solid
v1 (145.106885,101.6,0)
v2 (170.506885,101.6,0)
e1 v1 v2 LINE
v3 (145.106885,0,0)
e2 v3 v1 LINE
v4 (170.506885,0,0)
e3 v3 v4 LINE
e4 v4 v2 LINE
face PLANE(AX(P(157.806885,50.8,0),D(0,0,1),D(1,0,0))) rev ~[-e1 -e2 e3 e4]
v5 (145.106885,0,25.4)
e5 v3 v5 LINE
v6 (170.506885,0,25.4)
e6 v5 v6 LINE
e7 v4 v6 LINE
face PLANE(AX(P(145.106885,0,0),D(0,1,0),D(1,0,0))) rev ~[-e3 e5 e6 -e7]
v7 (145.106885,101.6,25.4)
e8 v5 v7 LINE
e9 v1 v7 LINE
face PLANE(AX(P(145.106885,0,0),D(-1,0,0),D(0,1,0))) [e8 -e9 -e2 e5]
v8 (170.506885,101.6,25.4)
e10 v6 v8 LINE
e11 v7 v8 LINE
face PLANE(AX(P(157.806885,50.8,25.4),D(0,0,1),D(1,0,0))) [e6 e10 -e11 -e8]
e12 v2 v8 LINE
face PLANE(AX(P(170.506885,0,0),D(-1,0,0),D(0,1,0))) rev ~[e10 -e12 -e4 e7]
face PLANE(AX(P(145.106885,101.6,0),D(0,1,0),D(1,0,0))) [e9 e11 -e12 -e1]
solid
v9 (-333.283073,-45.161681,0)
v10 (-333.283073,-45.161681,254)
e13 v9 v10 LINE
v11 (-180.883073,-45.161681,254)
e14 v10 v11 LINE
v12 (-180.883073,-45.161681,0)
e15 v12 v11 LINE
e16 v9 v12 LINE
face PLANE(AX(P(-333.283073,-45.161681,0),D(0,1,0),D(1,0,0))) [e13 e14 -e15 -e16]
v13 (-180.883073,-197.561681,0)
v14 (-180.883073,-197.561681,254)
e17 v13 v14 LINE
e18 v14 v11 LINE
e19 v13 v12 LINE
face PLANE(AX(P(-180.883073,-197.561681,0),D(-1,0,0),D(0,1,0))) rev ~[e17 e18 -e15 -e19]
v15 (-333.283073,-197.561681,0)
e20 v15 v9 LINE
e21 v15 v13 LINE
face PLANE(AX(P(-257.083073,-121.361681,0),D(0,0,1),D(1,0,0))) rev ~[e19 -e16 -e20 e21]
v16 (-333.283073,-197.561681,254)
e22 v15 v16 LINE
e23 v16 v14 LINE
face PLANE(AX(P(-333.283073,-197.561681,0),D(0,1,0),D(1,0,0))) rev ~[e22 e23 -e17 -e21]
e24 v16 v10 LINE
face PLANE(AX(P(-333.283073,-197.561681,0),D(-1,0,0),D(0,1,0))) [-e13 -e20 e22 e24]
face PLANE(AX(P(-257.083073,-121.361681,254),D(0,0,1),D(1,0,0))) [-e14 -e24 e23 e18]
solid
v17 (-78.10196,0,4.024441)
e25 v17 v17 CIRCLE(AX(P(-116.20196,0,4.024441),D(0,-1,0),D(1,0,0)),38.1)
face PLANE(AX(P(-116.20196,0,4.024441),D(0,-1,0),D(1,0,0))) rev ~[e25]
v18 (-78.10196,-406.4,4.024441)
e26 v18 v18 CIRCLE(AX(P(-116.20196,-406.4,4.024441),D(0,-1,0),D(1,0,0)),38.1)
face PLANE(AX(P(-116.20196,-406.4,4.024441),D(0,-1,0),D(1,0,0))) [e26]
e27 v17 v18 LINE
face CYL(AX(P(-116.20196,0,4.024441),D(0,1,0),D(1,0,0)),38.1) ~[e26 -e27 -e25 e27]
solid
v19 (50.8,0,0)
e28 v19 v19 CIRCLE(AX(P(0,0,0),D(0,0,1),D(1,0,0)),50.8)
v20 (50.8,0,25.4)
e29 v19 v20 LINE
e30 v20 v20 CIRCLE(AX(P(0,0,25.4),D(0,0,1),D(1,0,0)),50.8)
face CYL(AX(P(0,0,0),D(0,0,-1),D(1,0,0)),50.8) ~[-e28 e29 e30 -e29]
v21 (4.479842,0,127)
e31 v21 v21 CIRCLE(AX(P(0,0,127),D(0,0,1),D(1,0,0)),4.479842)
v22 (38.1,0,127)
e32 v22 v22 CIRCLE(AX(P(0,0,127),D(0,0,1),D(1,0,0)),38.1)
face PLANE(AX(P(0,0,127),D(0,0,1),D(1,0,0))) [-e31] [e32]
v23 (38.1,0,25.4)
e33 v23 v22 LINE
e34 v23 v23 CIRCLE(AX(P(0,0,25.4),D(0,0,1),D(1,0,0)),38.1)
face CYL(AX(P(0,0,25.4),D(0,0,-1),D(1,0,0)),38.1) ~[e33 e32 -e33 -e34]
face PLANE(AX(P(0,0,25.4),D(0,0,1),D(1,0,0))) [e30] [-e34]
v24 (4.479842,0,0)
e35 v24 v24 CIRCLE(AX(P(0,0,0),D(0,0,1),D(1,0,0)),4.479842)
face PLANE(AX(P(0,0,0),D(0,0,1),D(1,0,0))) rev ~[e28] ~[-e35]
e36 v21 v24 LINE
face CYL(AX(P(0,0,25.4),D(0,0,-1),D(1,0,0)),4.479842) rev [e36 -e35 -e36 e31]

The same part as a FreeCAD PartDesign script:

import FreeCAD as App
import Part
import Sketcher

V = App.Vector
Q = App.Units.Quantity

doc = App.newDocument("Part")
body = doc.addObject("PartDesign::Body", "Body")

# Sketch on XY plane
sketch1 = doc.addObject("Sketcher::SketchObject", "Sketch")
body.addObject(sketch1)
sketch1.AttachmentSupport = (doc.XY_Plane, [""])
sketch1.MapMode = "FlatFace"
sketch1.addGeometry([
    Part.Circle(V(0, 0, 0), V(0, 0, 1), 50.8),
    Part.Circle(V(0, 0, 0), V(0, 0, 1), 4.5),
], False)
sketch1.addConstraint([
    Sketcher.Constraint("Coincident", 0, 3, -1, 1),
    Sketcher.Constraint("Coincident", 1, 3, -1, 1),
    Sketcher.Constraint("Diameter", 0, Q("4 in")),
    Sketcher.Constraint("Diameter", 1, 8.959684),
])
pad1 = doc.addObject("PartDesign::Pad", "Pad")
body.addObject(pad1)
pad1.Profile = sketch1
pad1.Length = Q("1 in")

# Sketch on XY plane
sketch2 = doc.addObject("Sketcher::SketchObject", "Sketch001")
body.addObject(sketch2)
sketch2.AttachmentSupport = (doc.XY_Plane, [""])
sketch2.MapMode = "FlatFace"
sketch2.AttachmentOffset = App.Placement(V(0, 0, 1 * 25.4), App.Rotation())
sketch2.addGeometry([
    Part.Circle(V(0, 0, 0), V(0, 0, 1), 38.1),
    Part.Circle(V(0, 0, 0), V(0, 0, 1), 4.5),
], False)
sketch2.addConstraint([
    Sketcher.Constraint("Coincident", 0, 3, -1, 1),
    Sketcher.Constraint("Coincident", 1, 3, -1, 1),
    Sketcher.Constraint("Diameter", 0, Q("3 in")),
    Sketcher.Constraint("Diameter", 1, 8.959684),
])
pad2 = doc.addObject("PartDesign::Pad", "Pad001")
body.addObject(pad2)
pad2.Profile = sketch2
pad2.Length = Q("4 in")
body2 = doc.addObject("PartDesign::Body", "Body001")

# Sketch on XZ plane
sketch3 = doc.addObject("Sketcher::SketchObject", "Sketch002")
body2.addObject(sketch3)
sketch3.AttachmentSupport = (doc.getObject("XZ_Plane001"), [""])
sketch3.MapMode = "FlatFace"
sketch3.addGeometry(Part.Circle(V(-116, 4, 0), V(0, 0, 1), 38), False)
sketch3.addConstraint([
    Sketcher.Constraint("Diameter", 0, Q("3 in")),
    Sketcher.Constraint("DistanceX", 0, 3, -1, 1, 116.20196),
    Sketcher.Constraint("DistanceY", -1, 1, 0, 3, 4.024441),
])
pad3 = doc.addObject("PartDesign::Pad", "Pad002")
body2.addObject(pad3)
pad3.Profile = sketch3
pad3.Length = Q("16 in")
body3 = doc.addObject("PartDesign::Body", "Body002")

# Sketch on XY plane
sketch4 = doc.addObject("Sketcher::SketchObject", "Sketch003")
body3.addObject(sketch4)
sketch4.AttachmentSupport = (doc.getObject("XY_Plane002"), [""])
sketch4.MapMode = "FlatFace"
sketch4.addGeometry([
    Part.LineSegment(V(-333, -45, 0), V(-333, -198, 0)),
    Part.LineSegment(V(-333, -198, 0), V(-181, -198, 0)),
    Part.LineSegment(V(-181, -198, 0), V(-181, -45, 0)),
    Part.LineSegment(V(-181, -45, 0), V(-333, -45, 0)),
], False)
sketch4.addConstraint([
    Sketcher.Constraint("Coincident", 0, 2, 1, 1),
    Sketcher.Constraint("Coincident", 1, 2, 2, 1),
    Sketcher.Constraint("Coincident", 2, 2, 3, 1),
    Sketcher.Constraint("Coincident", 3, 2, 0, 1),
    Sketcher.Constraint("Vertical", 0),
    Sketcher.Constraint("Horizontal", 1),
    Sketcher.Constraint("Vertical", 2),
    Sketcher.Constraint("Horizontal", 3),
    Sketcher.Constraint("Equal", 3, 0),
    Sketcher.Constraint("DistanceX", 1, 1, 1, 2, Q("6 in")),
    Sketcher.Constraint("DistanceY", 0, 2, -1, 1, 197.561681),
    Sketcher.Constraint("DistanceX", 0, 2, -1, 1, 333.283073),
])
pad4 = doc.addObject("PartDesign::Pad", "Pad003")
body3.addObject(pad4)
pad4.Profile = sketch4
pad4.Length = Q("10 in")
body4 = doc.addObject("PartDesign::Body", "Body003")

# Sketch on XY plane
sketch5 = doc.addObject("Sketcher::SketchObject", "Sketch004")
body4.addObject(sketch5)
sketch5.AttachmentSupport = (doc.getObject("XY_Plane003"), [""])
sketch5.MapMode = "FlatFace"
sketch5.addGeometry([
    Part.LineSegment(V(145, 102, 0), V(145, 0, 0)),
    Part.LineSegment(V(145, 0, 0), V(171, 0, 0)),
    Part.LineSegment(V(171, 0, 0), V(171, 102, 0)),
    Part.LineSegment(V(171, 102, 0), V(145, 102, 0)),
], False)
sketch5.addConstraint([
    Sketcher.Constraint("Coincident", 0, 2, 1, 1),
    Sketcher.Constraint("Coincident", 1, 2, 2, 1),
    Sketcher.Constraint("Coincident", 2, 2, 3, 1),
    Sketcher.Constraint("Coincident", 3, 2, 0, 1),
    Sketcher.Constraint("Vertical", 0),
    Sketcher.Constraint("Horizontal", 1),
    Sketcher.Constraint("Vertical", 2),
    Sketcher.Constraint("Horizontal", 3),
    Sketcher.Constraint("PointOnObject", 0, 2, -1),
    Sketcher.Constraint("DistanceX", 1, 1, 1, 2, Q("1 in")),
    Sketcher.Constraint("DistanceY", 0, 2, 0, 1, Q("4 in")),
    Sketcher.Constraint("DistanceX", -1, 1, 0, 2, 145.106885),
])
pad5 = doc.addObject("PartDesign::Pad", "Pad004")
body4.addObject(pad5)
pad5.Profile = sketch5
pad5.Length = Q("1 in")

doc.recompute()
